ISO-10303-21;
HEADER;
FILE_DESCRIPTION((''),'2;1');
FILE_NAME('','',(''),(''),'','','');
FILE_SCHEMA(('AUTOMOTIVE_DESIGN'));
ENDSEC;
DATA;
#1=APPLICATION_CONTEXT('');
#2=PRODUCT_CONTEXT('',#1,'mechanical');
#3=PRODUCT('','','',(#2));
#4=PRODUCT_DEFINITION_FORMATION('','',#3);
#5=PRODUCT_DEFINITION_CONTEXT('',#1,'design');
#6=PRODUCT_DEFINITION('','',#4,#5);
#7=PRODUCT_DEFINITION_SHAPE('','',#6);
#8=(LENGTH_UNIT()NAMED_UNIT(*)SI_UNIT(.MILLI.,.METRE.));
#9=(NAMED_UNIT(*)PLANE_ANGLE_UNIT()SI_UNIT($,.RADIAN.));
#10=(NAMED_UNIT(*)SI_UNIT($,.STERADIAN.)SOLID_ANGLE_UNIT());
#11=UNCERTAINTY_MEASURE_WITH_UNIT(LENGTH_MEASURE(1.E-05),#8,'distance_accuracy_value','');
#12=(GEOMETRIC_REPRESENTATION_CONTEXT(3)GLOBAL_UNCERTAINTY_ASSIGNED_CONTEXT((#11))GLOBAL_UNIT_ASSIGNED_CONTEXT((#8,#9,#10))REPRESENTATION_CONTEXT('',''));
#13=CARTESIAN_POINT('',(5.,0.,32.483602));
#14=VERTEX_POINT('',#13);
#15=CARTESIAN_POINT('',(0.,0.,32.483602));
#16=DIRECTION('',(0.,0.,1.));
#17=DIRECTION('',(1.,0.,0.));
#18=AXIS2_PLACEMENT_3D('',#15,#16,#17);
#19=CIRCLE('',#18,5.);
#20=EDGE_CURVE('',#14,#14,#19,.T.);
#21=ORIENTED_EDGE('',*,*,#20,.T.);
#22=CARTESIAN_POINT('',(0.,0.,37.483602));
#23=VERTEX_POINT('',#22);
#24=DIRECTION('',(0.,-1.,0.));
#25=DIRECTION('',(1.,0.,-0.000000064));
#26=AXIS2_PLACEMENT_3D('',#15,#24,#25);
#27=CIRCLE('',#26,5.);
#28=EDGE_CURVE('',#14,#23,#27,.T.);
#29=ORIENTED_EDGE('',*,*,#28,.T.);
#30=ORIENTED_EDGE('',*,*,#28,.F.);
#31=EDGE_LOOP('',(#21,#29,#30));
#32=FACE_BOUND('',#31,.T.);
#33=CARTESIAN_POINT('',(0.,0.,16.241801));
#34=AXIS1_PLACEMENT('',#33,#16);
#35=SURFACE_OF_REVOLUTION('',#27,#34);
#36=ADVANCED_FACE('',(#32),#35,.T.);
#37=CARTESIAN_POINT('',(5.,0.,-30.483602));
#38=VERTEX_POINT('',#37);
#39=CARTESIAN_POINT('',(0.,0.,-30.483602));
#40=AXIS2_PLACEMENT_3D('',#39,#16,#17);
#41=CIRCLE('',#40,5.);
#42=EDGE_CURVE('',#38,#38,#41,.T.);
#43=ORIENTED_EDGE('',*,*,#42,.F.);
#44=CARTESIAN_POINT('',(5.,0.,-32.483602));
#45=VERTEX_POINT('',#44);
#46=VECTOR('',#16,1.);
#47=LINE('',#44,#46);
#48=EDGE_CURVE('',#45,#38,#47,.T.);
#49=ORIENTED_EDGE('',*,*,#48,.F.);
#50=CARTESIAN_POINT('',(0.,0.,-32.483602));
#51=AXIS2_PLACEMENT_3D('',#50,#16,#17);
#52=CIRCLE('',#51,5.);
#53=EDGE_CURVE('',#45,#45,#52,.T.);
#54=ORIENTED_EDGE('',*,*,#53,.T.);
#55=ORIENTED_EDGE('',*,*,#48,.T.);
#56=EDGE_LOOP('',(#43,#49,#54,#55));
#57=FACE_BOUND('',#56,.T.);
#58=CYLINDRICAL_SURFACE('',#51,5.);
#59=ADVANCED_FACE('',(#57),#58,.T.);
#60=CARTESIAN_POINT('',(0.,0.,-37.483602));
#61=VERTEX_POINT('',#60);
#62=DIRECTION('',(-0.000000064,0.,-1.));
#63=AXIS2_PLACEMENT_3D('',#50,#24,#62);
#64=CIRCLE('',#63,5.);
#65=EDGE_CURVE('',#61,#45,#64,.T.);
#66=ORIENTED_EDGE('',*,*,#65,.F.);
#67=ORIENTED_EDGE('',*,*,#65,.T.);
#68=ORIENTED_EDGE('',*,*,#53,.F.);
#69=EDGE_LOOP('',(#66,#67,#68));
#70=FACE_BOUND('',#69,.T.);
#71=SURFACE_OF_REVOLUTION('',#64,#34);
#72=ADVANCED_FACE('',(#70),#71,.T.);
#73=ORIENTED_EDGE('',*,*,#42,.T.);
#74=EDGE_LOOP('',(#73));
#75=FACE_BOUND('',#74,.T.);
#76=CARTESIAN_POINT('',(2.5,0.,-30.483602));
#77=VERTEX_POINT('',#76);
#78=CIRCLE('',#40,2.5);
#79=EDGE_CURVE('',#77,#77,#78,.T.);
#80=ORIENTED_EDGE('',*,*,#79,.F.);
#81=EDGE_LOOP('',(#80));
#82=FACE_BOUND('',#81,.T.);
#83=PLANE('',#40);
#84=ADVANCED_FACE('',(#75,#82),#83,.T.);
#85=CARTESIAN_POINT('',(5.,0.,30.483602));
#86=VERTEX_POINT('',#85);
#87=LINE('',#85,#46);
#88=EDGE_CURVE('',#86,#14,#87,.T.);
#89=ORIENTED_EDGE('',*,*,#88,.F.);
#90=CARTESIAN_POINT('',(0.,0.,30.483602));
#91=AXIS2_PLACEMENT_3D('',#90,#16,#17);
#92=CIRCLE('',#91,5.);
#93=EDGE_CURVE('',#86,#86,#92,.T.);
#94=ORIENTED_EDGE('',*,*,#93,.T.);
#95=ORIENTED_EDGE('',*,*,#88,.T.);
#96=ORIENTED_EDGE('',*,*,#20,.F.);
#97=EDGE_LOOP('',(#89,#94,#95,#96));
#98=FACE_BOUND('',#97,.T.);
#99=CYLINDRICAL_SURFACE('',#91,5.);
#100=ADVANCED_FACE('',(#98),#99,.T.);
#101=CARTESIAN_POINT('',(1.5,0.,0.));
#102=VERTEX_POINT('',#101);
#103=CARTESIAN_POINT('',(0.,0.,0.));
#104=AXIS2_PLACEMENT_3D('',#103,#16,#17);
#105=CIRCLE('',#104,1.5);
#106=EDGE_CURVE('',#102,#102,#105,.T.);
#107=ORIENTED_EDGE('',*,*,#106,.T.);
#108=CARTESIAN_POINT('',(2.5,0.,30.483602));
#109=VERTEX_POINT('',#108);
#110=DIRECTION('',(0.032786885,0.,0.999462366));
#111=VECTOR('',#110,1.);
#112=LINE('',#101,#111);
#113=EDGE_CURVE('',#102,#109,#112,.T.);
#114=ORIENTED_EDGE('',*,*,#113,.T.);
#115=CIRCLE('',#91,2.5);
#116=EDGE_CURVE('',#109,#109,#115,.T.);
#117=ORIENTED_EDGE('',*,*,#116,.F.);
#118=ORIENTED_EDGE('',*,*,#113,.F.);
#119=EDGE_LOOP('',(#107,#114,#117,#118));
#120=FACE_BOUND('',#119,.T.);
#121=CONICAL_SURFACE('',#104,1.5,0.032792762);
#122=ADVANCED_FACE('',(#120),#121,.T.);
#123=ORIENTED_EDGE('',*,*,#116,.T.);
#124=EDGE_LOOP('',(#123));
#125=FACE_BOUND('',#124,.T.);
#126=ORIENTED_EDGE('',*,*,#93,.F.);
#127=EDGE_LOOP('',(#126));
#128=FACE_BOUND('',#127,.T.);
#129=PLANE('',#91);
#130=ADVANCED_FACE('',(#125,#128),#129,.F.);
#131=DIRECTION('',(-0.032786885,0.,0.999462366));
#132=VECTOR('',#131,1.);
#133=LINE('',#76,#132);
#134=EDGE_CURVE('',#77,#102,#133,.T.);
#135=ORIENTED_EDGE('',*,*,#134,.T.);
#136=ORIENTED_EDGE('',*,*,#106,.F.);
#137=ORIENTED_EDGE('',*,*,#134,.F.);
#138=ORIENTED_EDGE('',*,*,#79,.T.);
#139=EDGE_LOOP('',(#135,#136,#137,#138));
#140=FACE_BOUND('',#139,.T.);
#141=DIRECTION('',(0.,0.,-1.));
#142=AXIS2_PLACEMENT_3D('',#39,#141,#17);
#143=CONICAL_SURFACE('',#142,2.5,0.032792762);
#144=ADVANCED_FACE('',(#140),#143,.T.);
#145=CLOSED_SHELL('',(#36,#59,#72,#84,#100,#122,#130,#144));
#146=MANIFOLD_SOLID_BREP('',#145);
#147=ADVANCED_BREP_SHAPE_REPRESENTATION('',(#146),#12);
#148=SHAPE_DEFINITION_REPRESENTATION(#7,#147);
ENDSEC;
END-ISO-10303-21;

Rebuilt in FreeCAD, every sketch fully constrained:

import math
import FreeCAD as App
import Part
import Sketcher

doc = App.newDocument("Part")
body = doc.addObject("PartDesign::Body", "Body")

# Sketch on XZ plane
sketch1 = body.newObject("Sketcher::SketchObject", "Sketch")
sketch1.AttachmentSupport = (doc.getObject("XZ_Plane"), [""])
sketch1.MapMode = "FlatFace"
sketch1.addGeometry(Part.ArcOfCircle(Part.Circle(App.Vector(0, -32.5, 0), App.Vector(0, 0, 1), 5), math.radians(-90), math.radians(0)), False)
sketch1.addGeometry(Part.LineSegment(App.Vector(5, -32.5, 0), App.Vector(5, -30.5, 0)), False)
sketch1.addGeometry(Part.LineSegment(App.Vector(5, -30.5, 0), App.Vector(2.5, -30.5, 0)), False)
sketch1.addGeometry(Part.LineSegment(App.Vector(2.5, -30.5, 0), App.Vector(1.5, 0, 0)), False)
sketch1.addGeometry(Part.LineSegment(App.Vector(1.5, 0, 0), App.Vector(2.5, 30.5, 0)), False)
sketch1.addGeometry(Part.LineSegment(App.Vector(2.5, 30.5, 0), App.Vector(5, 30.5, 0)), False)
sketch1.addGeometry(Part.LineSegment(App.Vector(5, 30.5, 0), App.Vector(5, 32.5, 0)), False)
sketch1.addGeometry(Part.ArcOfCircle(Part.Circle(App.Vector(0, 32.5, 0), App.Vector(0, 0, 1), 5), math.radians(0), math.radians(90)), False)
sketch1.addGeometry(Part.LineSegment(App.Vector(0, 37.5, 0), App.Vector(0, -37.5, 0)), False)
sketch1.addConstraint(Sketcher.Constraint("Tangent", 0, 2, 1, 1))
sketch1.addConstraint(Sketcher.Constraint("Coincident", 1, 2, 2, 1))
sketch1.addConstraint(Sketcher.Constraint("Coincident", 2, 2, 3, 1))
sketch1.addConstraint(Sketcher.Constraint("Coincident", 3, 2, 4, 1))
sketch1.addConstraint(Sketcher.Constraint("Coincident", 4, 2, 5, 1))
sketch1.addConstraint(Sketcher.Constraint("Coincident", 5, 2, 6, 1))
sketch1.addConstraint(Sketcher.Constraint("Tangent", 6, 2, 7, 1))
sketch1.addConstraint(Sketcher.Constraint("Coincident", 7, 2, 8, 1))
sketch1.addConstraint(Sketcher.Constraint("Coincident", 8, 2, 0, 1))
sketch1.addConstraint(Sketcher.Constraint("Vertical", 1))
sketch1.addConstraint(Sketcher.Constraint("Horizontal", 2))
sketch1.addConstraint(Sketcher.Constraint("Horizontal", 5))
sketch1.addConstraint(Sketcher.Constraint("Vertical", 6))
sketch1.addConstraint(Sketcher.Constraint("Vertical", 8))
sketch1.addConstraint(Sketcher.Constraint("Equal", 0, 7))
sketch1.addConstraint(Sketcher.Constraint("Symmetric", 0, 3, 7, 3, -1, 1))
sketch1.addConstraint(Sketcher.Constraint("Symmetric", 2, 2, 4, 2, -1))
sketch1.addConstraint(Sketcher.Constraint("PointOnObject", 0, 3, -2))
sketch1.addConstraint(Sketcher.Constraint("PointOnObject", 3, 2, -1))
sketch1.addConstraint(Sketcher.Constraint("PointOnObject", 7, 2, -2))
sketch1.addConstraint(Sketcher.Constraint("Radius", 0, 5.0))
sketch1.addConstraint(Sketcher.Constraint("DistanceY", 1, 1, 1, 2, 2.0))
sketch1.addConstraint(Sketcher.Constraint("DistanceX", 2, 2, 2, 1, 2.5))
sketch1.addConstraint(Sketcher.Constraint("DistanceX", 3, 2, 2, 2, 1.0))
sketch1.addConstraint(Sketcher.Constraint("Distance", 3, 30.5))
revolution = body.newObject("PartDesign::Revolution", "Revolution")
revolution.Profile = sketch1
revolution.ReferenceAxis = (sketch1, ["V_Axis"])
revolution.Angle = 360

doc.recompute()
